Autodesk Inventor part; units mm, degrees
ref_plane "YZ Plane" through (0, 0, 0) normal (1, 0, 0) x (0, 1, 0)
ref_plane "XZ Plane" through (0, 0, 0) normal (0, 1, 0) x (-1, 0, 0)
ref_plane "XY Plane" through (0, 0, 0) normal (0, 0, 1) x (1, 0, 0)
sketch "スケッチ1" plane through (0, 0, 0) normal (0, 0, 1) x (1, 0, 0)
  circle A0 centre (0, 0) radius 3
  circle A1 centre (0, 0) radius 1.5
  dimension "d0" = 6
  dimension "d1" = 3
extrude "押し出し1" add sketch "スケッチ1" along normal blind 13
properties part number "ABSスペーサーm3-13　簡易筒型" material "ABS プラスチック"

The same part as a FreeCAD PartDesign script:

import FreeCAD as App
import Part
import Sketcher
from FreeCAD import Vector

doc = App.newDocument("Part")
body = doc.addObject("PartDesign::Body", "Body")

sketch1 = body.newObject("Sketcher::SketchObject", "Sketch")
sketch1.AttachmentSupport = (doc.getObject("XY_Plane"), [""])
sketch1.MapMode = "FlatFace"
sketch1.addGeometry([
    Part.Circle(Vector(0, 0, 0), Vector(0, 0, 1), 3),
    Part.Circle(Vector(0, 0, 0), Vector(0, 0, 1), 1.5),
], False)
sketch1.addConstraint([
    Sketcher.Constraint("Coincident", 0, 3, -1, 1),
    Sketcher.Constraint("Coincident", 1, 3, -1, 1),
    Sketcher.Constraint("Diameter", 0, 6.0),
    Sketcher.Constraint("Diameter", 1, 3.0),
])
pad1 = body.newObject("PartDesign::Pad", "Pad")
pad1.Profile = sketch1
pad1.Length = 13

doc.recompute()
